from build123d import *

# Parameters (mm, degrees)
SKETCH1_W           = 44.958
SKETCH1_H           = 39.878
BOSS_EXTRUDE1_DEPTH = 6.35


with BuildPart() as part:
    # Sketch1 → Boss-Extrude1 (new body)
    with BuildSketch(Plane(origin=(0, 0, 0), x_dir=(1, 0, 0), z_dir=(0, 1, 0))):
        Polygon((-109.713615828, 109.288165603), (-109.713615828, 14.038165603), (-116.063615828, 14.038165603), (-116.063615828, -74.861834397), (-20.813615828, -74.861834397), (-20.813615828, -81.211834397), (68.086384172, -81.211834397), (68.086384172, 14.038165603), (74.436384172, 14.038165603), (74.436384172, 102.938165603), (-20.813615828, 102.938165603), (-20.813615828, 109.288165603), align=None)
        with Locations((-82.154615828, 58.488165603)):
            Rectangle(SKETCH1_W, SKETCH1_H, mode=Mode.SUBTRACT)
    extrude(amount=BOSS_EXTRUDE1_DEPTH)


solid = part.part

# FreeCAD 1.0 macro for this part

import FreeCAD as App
import Part
import Sketcher
Q = App.Units.Quantity

doc = App.newDocument("Part")
params = doc.addObject("Spreadsheet::Sheet", "Params")
for row, (alias, value) in enumerate([
    ("sketch1_width", "3.5 in"),
    ("sketch1_width2", "0.25 in"),
    ("sketch1_width3", "1.77 in"),
    ("sketch1_height", "1.57 in"),
    ("pad1_length", "0.25 in"),
], start=1):
    params.set(f"A{row}", alias)
    params.set(f"B{row}", "=" + value)
    params.setAlias(f"B{row}", alias)

body = doc.addObject("PartDesign::Body", "Body")

# Sketch on XZ plane
sketch1 = doc.addObject("Sketcher::SketchObject", "Sketch")
body.addObject(sketch1)
sketch1.AttachmentSupport = (doc.XZ_Plane, [""])
sketch1.MapMode = "FlatFace"
sketch1.addGeometry([
    Part.LineSegment(App.Vector(-109.713616, -109.288166, 0), App.Vector(-109.713616, -14.038166, 0)),  # 0
    Part.LineSegment(App.Vector(-109.713616, -14.038166, 0), App.Vector(-116.063616, -14.038166, 0)),  # 1
    Part.LineSegment(App.Vector(-116.063616, -14.038166, 0), App.Vector(-116.063616, 74.861834, 0)),  # 2
    Part.LineSegment(App.Vector(-116.063616, 74.861834, 0), App.Vector(-20.813616, 74.861834, 0)),  # 3
    Part.LineSegment(App.Vector(-20.813616, 74.861834, 0), App.Vector(-20.813616, 81.211834, 0)),  # 4
    Part.LineSegment(App.Vector(-20.813616, 81.211834, 0), App.Vector(68.086384, 81.211834, 0)),  # 5
    Part.LineSegment(App.Vector(68.086384, 81.211834, 0), App.Vector(68.086384, -14.038166, 0)),  # 6
    Part.LineSegment(App.Vector(68.086384, -14.038166, 0), App.Vector(74.436384, -14.038166, 0)),  # 7
    Part.LineSegment(App.Vector(74.436384, -14.038166, 0), App.Vector(74.436384, -102.938166, 0)),  # 8
    Part.LineSegment(App.Vector(74.436384, -102.938166, 0), App.Vector(-20.813616, -102.938166, 0)),  # 9
    Part.LineSegment(App.Vector(-20.813616, -102.938166, 0), App.Vector(-20.813616, -109.288166, 0)),  # 10
    Part.LineSegment(App.Vector(-20.813616, -109.288166, 0), App.Vector(-109.713616, -109.288166, 0)),  # 11
    Part.LineSegment(App.Vector(-59.675616, -38.549166, 0), App.Vector(-104.633616, -38.549166, 0)),  # 12
    Part.LineSegment(App.Vector(-104.633616, -38.549166, 0), App.Vector(-104.633616, -78.427166, 0)),  # 13
    Part.LineSegment(App.Vector(-104.633616, -78.427166, 0), App.Vector(-59.675616, -78.427166, 0)),  # 14
    Part.LineSegment(App.Vector(-59.675616, -78.427166, 0), App.Vector(-59.675616, -38.549166, 0)),  # 15
], False)
sketch1.addConstraint([
    Sketcher.Constraint("Coincident", 0, 2, 1, 1),
    Sketcher.Constraint("Coincident", 1, 2, 2, 1),
    Sketcher.Constraint("Coincident", 2, 2, 3, 1),
    Sketcher.Constraint("Coincident", 3, 2, 4, 1),
    Sketcher.Constraint("Coincident", 4, 2, 5, 1),
    Sketcher.Constraint("Coincident", 5, 2, 6, 1),
    Sketcher.Constraint("Coincident", 6, 2, 7, 1),
    Sketcher.Constraint("Coincident", 7, 2, 8, 1),
    Sketcher.Constraint("Coincident", 8, 2, 9, 1),
    Sketcher.Constraint("Coincident", 9, 2, 10, 1),
    Sketcher.Constraint("Coincident", 10, 2, 11, 1),
    Sketcher.Constraint("Coincident", 11, 2, 0, 1),
    Sketcher.Constraint("Coincident", 12, 2, 13, 1),
    Sketcher.Constraint("Coincident", 13, 2, 14, 1),
    Sketcher.Constraint("Coincident", 14, 2, 15, 1),
    Sketcher.Constraint("Coincident", 15, 2, 12, 1),
    Sketcher.Constraint("Vertical", 0),
    Sketcher.Constraint("Horizontal", 1),
    Sketcher.Constraint("Vertical", 2),
    Sketcher.Constraint("Horizontal", 3),
    Sketcher.Constraint("Vertical", 4),
    Sketcher.Constraint("Horizontal", 5),
    Sketcher.Constraint("Vertical", 6),
    Sketcher.Constraint("Horizontal", 7),
    Sketcher.Constraint("Vertical", 8),
    Sketcher.Constraint("Horizontal", 9),
    Sketcher.Constraint("Vertical", 10),
    Sketcher.Constraint("Horizontal", 11),
    Sketcher.Constraint("Horizontal", 12),
    Sketcher.Constraint("Vertical", 13),
    Sketcher.Constraint("Horizontal", 14),
    Sketcher.Constraint("Vertical", 15),
    Sketcher.Constraint("Horizontal", 1, 2, 6, 2),
    Sketcher.Constraint("Vertical", 4, 2, 9, 2),
    Sketcher.Constraint("Equal", 1, 7),
    Sketcher.Constraint("Equal", 3, 9),
    Sketcher.Constraint("Equal", 9, 0),
    Sketcher.Constraint("Equal", 11, 2),
    Sketcher.Constraint("Equal", 7, 4),
    Sketcher.Constraint("Equal", 2, 8),
    Sketcher.Constraint("DistanceX", 5, 1, 5, 2, Q("3.5 in")),
    Sketcher.Constraint("DistanceX", 1, 2, 1, 1, Q("0.25 in")),
    Sketcher.Constraint("DistanceX", 12, 2, 12, 1, Q("1.77 in")),
    Sketcher.Constraint("DistanceY", 13, 2, 13, 1, Q("1.57 in")),
    Sketcher.Constraint("DistanceX", 0, 2, 12, 2, Q("0.2 in")),
    Sketcher.Constraint("DistanceY", 12, 2, 0, 2, Q("0.965 in")),
    Sketcher.Constraint("DistanceX", 0, 2, -1, 1, 109.713616),
    Sketcher.Constraint("DistanceY", 0, 2, -1, 1, 14.038166),
])
sketch1.setExpression("Constraints[40]", "Params.sketch1_width")
sketch1.setExpression("Constraints[41]", "Params.sketch1_width2")
sketch1.setExpression("Constraints[42]", "Params.sketch1_width3")
sketch1.setExpression("Constraints[43]", "Params.sketch1_height")
pad1 = doc.addObject("PartDesign::Pad", "Pad")
body.addObject(pad1)
pad1.Profile = sketch1
pad1.setExpression("Length", "Params.pad1_length")
pad1.Reversed = True

doc.recompute()
